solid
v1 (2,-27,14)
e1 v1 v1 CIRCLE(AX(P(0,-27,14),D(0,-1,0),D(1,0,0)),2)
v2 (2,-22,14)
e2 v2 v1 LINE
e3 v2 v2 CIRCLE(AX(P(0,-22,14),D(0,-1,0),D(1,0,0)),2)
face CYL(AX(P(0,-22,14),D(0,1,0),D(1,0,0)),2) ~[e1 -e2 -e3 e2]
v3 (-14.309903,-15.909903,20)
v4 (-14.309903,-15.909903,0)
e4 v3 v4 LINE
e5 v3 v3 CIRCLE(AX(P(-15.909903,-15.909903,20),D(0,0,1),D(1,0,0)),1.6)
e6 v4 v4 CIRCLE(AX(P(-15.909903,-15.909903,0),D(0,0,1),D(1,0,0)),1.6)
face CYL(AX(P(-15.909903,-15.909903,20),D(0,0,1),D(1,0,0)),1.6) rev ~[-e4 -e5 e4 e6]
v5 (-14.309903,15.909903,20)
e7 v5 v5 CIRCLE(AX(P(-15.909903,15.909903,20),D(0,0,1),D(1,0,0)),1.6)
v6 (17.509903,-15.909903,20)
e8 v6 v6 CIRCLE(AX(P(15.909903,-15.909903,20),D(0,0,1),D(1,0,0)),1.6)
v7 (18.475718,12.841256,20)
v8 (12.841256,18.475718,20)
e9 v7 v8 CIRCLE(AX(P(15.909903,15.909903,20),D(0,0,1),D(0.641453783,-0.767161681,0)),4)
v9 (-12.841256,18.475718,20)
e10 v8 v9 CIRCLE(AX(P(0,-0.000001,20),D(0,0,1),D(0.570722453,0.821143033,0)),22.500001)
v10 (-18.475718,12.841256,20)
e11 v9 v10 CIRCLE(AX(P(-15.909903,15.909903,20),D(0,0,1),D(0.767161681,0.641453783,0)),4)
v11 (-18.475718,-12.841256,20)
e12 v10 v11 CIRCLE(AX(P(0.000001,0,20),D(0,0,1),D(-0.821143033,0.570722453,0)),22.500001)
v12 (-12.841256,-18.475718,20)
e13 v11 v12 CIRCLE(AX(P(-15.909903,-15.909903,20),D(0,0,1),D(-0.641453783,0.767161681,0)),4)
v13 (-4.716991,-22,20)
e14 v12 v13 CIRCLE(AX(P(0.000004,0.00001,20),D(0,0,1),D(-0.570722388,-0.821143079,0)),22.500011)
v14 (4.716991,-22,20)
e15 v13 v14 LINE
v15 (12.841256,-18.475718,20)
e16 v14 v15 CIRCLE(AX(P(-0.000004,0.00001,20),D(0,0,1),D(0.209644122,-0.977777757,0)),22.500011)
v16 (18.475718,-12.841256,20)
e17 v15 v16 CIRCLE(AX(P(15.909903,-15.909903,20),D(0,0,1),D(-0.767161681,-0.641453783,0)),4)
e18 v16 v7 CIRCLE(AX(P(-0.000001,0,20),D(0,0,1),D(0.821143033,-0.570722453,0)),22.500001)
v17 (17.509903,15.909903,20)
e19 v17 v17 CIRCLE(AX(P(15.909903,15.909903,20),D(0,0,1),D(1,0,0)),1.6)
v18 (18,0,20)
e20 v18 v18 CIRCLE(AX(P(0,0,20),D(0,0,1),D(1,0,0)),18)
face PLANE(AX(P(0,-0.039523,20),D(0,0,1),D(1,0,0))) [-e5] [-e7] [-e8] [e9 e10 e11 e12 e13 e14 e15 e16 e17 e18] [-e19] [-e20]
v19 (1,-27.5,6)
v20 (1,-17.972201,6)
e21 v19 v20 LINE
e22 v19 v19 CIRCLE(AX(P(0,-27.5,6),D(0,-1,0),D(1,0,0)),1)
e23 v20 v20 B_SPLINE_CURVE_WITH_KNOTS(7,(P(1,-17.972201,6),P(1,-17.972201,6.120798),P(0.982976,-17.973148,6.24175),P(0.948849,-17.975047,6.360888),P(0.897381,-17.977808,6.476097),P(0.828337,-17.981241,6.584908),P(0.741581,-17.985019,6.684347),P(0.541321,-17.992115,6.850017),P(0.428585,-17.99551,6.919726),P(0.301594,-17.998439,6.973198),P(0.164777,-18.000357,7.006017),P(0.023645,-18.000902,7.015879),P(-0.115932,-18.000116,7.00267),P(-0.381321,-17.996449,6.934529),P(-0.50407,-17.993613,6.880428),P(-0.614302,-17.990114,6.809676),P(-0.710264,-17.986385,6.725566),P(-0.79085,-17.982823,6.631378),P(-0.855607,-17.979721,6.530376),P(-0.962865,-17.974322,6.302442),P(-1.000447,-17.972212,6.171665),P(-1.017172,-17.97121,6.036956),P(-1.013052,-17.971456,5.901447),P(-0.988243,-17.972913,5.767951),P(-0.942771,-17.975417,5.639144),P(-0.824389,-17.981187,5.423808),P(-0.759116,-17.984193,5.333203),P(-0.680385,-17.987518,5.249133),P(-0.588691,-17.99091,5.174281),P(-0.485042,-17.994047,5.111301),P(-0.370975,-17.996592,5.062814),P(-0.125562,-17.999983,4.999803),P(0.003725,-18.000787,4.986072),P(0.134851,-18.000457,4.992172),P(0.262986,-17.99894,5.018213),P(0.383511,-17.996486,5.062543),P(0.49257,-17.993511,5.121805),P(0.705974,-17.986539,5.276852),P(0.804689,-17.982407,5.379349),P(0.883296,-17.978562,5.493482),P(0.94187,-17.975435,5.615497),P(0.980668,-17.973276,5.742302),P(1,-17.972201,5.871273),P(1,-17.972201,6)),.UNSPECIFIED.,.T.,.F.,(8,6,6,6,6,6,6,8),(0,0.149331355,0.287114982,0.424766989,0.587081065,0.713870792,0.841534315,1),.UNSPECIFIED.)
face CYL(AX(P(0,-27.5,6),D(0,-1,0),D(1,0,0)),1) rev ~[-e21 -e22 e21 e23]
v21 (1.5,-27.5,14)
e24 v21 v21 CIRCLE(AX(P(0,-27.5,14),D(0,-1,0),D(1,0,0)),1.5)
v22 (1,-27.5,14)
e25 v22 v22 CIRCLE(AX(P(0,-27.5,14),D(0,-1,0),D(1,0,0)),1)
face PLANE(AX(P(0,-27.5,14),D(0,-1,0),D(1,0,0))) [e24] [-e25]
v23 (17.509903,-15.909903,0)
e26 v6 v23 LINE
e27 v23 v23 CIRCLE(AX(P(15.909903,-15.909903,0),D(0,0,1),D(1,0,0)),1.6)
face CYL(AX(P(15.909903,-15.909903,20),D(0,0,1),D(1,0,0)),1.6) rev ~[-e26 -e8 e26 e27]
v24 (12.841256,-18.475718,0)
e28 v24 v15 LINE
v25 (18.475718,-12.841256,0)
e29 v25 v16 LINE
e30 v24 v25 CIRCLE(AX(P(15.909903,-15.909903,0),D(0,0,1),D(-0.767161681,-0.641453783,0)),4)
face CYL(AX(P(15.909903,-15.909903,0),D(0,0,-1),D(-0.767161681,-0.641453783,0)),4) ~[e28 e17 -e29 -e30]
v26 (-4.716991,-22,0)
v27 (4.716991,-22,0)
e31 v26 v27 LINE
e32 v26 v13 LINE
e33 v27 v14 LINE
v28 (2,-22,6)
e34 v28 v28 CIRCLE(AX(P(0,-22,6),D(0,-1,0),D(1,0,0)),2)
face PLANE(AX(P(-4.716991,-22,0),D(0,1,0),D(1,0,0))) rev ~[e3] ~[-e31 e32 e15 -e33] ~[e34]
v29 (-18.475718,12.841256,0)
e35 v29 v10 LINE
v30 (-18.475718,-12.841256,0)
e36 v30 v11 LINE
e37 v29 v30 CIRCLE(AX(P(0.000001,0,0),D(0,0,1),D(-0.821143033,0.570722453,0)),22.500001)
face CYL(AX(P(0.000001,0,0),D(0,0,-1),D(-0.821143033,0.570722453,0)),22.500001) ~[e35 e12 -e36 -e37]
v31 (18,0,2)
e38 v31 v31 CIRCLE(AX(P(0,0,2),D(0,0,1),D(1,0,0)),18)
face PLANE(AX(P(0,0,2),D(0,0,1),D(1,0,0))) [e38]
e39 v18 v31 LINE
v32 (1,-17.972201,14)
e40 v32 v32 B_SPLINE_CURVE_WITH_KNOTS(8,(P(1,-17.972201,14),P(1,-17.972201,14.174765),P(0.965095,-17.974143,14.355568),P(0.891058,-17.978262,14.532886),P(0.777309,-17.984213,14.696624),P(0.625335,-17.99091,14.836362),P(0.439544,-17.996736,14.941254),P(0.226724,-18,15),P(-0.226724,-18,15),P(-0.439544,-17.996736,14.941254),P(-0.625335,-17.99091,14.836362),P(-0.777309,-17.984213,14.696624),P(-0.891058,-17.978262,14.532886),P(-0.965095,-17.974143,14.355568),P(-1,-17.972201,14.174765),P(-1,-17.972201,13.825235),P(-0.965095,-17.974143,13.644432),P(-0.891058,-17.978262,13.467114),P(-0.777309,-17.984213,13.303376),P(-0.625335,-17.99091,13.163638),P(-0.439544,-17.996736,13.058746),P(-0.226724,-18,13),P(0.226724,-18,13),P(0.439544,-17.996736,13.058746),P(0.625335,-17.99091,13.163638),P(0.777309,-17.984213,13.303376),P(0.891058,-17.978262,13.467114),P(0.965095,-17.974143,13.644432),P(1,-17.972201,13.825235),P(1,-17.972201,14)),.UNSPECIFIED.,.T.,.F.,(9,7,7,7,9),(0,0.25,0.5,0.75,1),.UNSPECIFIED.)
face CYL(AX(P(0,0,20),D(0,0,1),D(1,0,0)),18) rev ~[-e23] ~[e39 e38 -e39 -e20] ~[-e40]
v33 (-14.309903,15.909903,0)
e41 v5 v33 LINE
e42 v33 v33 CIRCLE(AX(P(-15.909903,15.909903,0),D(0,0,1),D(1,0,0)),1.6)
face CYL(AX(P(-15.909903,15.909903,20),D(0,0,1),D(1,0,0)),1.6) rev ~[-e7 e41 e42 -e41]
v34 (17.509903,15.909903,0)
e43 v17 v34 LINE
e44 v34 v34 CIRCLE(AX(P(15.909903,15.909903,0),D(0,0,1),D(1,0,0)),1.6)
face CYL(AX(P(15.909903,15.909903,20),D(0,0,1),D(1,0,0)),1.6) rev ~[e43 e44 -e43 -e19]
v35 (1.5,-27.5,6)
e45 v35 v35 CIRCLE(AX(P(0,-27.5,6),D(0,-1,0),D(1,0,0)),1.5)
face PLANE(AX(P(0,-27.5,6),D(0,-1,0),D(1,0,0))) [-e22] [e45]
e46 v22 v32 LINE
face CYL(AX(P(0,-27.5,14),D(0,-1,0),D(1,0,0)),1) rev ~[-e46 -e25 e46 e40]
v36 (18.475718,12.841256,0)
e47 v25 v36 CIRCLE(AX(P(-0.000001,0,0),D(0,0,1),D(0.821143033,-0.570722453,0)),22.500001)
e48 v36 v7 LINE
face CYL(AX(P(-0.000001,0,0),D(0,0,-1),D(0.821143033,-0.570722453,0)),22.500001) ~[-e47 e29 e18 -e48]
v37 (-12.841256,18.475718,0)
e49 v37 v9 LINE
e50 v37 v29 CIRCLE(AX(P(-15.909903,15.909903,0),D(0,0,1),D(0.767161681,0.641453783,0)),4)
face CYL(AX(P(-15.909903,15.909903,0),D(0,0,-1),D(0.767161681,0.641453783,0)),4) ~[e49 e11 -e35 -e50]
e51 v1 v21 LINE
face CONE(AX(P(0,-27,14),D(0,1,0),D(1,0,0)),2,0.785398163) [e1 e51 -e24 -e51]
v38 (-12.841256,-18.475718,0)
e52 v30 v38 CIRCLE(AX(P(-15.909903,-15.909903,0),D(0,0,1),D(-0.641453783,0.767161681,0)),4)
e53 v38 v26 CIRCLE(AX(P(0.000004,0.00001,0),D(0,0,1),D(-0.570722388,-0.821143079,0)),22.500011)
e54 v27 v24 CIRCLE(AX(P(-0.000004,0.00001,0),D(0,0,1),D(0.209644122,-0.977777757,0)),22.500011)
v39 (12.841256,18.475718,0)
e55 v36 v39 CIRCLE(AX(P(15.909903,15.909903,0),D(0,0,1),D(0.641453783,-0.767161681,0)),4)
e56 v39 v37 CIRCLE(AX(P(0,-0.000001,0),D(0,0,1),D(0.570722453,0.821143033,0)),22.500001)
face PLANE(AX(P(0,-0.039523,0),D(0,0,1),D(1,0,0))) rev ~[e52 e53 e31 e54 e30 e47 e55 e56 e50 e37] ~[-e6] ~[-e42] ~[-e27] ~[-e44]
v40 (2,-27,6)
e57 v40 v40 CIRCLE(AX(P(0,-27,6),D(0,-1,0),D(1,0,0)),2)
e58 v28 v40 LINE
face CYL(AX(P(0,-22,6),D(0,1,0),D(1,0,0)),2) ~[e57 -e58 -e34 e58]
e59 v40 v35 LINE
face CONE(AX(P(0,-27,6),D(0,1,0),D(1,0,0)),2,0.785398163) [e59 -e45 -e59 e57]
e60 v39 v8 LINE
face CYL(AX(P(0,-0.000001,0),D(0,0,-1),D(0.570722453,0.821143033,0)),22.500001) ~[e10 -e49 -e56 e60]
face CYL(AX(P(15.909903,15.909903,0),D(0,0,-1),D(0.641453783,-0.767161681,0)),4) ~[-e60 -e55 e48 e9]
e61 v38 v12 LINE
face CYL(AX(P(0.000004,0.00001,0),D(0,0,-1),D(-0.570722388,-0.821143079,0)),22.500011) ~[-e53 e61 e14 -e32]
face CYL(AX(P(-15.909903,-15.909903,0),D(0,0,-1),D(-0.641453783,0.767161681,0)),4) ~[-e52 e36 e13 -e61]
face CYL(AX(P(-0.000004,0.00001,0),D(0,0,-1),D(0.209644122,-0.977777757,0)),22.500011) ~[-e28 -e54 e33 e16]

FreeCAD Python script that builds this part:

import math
import FreeCAD as App
import Part
import Sketcher


def edges_at(feature, points):
    """Names of the edges that pass closest to the given points."""
    edges = feature.Shape.Edges
    near = lambda p: min(range(len(edges)), key=lambda i: edges[i].distToShape(Part.Vertex(*p))[0])
    return sorted({f"Edge{near(p) + 1}" for p in points})

doc = App.newDocument("Part")
body = doc.addObject("PartDesign::Body", "Body")

# Sketch on XY plane
sketch1 = doc.addObject("Sketcher::SketchObject", "Sketch")
body.addObject(sketch1)
sketch1.AttachmentSupport = (doc.XY_Plane, [""])
sketch1.MapMode = "FlatFace"
sketch1.addGeometry([
    Part.ArcOfCircle(Part.Circle(App.Vector(15.909903, 15.909903, 0), App.Vector(0, 0, 1), 4), math.radians(-50.09969), math.radians(140.09969)),  # 0
    Part.ArcOfCircle(Part.Circle(App.Vector(0, -0.000001, 0), App.Vector(0, 0, 1), 22.500001), math.radians(55.19938), math.radians(124.80062)),  # 1
    Part.ArcOfCircle(Part.Circle(App.Vector(-15.909903, 15.909903, 0), App.Vector(0, 0, 1), 4), math.radians(39.90031), math.radians(230.09969)),  # 2
    Part.ArcOfCircle(Part.Circle(App.Vector(0.000001, 0, 0), App.Vector(0, 0, 1), 22.500001), math.radians(145.19938), math.radians(214.80062)),  # 3
    Part.ArcOfCircle(Part.Circle(App.Vector(-15.909903, -15.909903, 0), App.Vector(0, 0, 1), 4), math.radians(129.90031), math.radians(320.09969)),  # 4
    Part.ArcOfCircle(Part.Circle(App.Vector(0.000004, 0.00001, 0), App.Vector(0, 0, 1), 22.500011), math.radians(-124.800615), math.radians(-102.101498)),  # 5
    Part.LineSegment(App.Vector(-4.716991, -22, 0), App.Vector(4.716991, -22, 0)),  # 6
    Part.ArcOfCircle(Part.Circle(App.Vector(-0.000004, 0.00001, 0), App.Vector(0, 0, 1), 22.500011), math.radians(-77.898502), math.radians(-55.199385)),  # 7
    Part.ArcOfCircle(Part.Circle(App.Vector(15.909903, -15.909903, 0), App.Vector(0, 0, 1), 4), math.radians(-140.09969), math.radians(50.09969)),  # 8
    Part.ArcOfCircle(Part.Circle(App.Vector(-0.000001, 0, 0), App.Vector(0, 0, 1), 22.500001), math.radians(-34.80062), math.radians(34.80062)),  # 9
], False)
sketch1.addConstraint([
    Sketcher.Constraint("Coincident", 0, 2, 1, 1),
    Sketcher.Constraint("Coincident", 1, 2, 2, 1),
    Sketcher.Constraint("Coincident", 2, 2, 3, 1),
    Sketcher.Constraint("Coincident", 3, 2, 4, 1),
    Sketcher.Constraint("Coincident", 4, 2, 5, 1),
    Sketcher.Constraint("Coincident", 5, 2, 6, 1),
    Sketcher.Constraint("Coincident", 6, 2, 7, 1),
    Sketcher.Constraint("Coincident", 7, 2, 8, 1),
    Sketcher.Constraint("Coincident", 8, 2, 9, 1),
    Sketcher.Constraint("Coincident", 9, 2, 0, 1),
    Sketcher.Constraint("Horizontal", 6),
    Sketcher.Constraint("Coincident", 1, 3, -1, 1),
    Sketcher.Constraint("Coincident", 3, 3, -1, 1),
    Sketcher.Constraint("Coincident", 9, 3, -1, 1),
    Sketcher.Constraint("Coincident", 7, 3, 5, 3),
    Sketcher.Constraint("Equal", 0, 2),
    Sketcher.Constraint("Equal", 1, 3),
    Sketcher.Constraint("Equal", 2, 4),
    Sketcher.Constraint("Equal", 5, 7),
    Sketcher.Constraint("Equal", 4, 8),
    Sketcher.Constraint("Equal", 3, 9),
    Sketcher.Constraint("Symmetric", 0, 3, 4, 3, -1, 1),
    Sketcher.Constraint("Symmetric", 1, 3, 5, 3, -1, 1),
    Sketcher.Constraint("Symmetric", 2, 3, 8, 3, -1, 1),
    Sketcher.Constraint("Symmetric", 0, 3, 2, 3, -2),
    Sketcher.Constraint("Vertical", 1, 2, 4, 2),
    Sketcher.Constraint("Radius", 0, 4.0),
    Sketcher.Constraint("Radius", 1, 22.500001),
    Sketcher.Constraint("DistanceY", 5, 2, -1, 1, 22.0),
    Sketcher.Constraint("DistanceX", 3, 3, 0, 3, 15.909901),
    Sketcher.Constraint("DistanceY", 4, 3, 1, 3, 15.909901),
])
pad1 = doc.addObject("PartDesign::Pad", "Pad")
body.addObject(pad1)
pad1.Profile = sketch1
pad1.Length = 20

# Sketch on XY plane
sketch2 = doc.addObject("Sketcher::SketchObject", "Sketch001")
body.addObject(sketch2)
sketch2.AttachmentSupport = (doc.XY_Plane, [""])
sketch2.MapMode = "FlatFace"
sketch2.AttachmentOffset = App.Placement(App.Vector(0, 0, 20), App.Rotation())
sketch2.addGeometry([
    Part.Circle(App.Vector(-15.9, 15.9, 0), App.Vector(0, 0, 1), 1.6),
    Part.Circle(App.Vector(15.9, 15.9, 0), App.Vector(0, 0, 1), 1.6),
    Part.Circle(App.Vector(15.9, -15.9, 0), App.Vector(0, 0, 1), 1.6),
    Part.Circle(App.Vector(-15.9, -15.9, 0), App.Vector(0, 0, 1), 1.6),
], False)
sketch2.addConstraint([
    Sketcher.Constraint("Equal", 0, 1),
    Sketcher.Constraint("Equal", 1, 2),
    Sketcher.Constraint("Equal", 2, 3),
    Sketcher.Constraint("Symmetric", 0, 3, 2, 3, -1, 1),
    Sketcher.Constraint("Symmetric", 1, 3, 3, 3, -1, 1),
    Sketcher.Constraint("Symmetric", 0, 3, 1, 3, -2),
    Sketcher.Constraint("Diameter", 0, 3.2),
    Sketcher.Constraint("DistanceX", 0, 3, -1, 1, 15.909903),
    Sketcher.Constraint("DistanceY", -1, 1, 0, 3, 15.909903),
])
pocket1 = doc.addObject("PartDesign::Pocket", "Pocket")
body.addObject(pocket1)
pocket1.Profile = sketch2
pocket1.Type = "ThroughAll"

# Sketch on XY plane
sketch3 = doc.addObject("Sketcher::SketchObject", "Sketch002")
body.addObject(sketch3)
sketch3.AttachmentSupport = (doc.XY_Plane, [""])
sketch3.MapMode = "FlatFace"
sketch3.AttachmentOffset = App.Placement(App.Vector(0, 0, 20), App.Rotation())
sketch3.addGeometry(Part.Circle(App.Vector(0, 0, 0), App.Vector(0, 0, 1), 18), False)
sketch3.addConstraint([
    Sketcher.Constraint("Coincident", 0, 3, -1, 1),
    Sketcher.Constraint("Diameter", 0, 36.0),
])
pocket2 = doc.addObject("PartDesign::Pocket", "Pocket001")
body.addObject(pocket2)
pocket2.Profile = sketch3
pocket2.Length = 18

# Sketch on XZ plane
sketch4 = doc.addObject("Sketcher::SketchObject", "Sketch003")
body.addObject(sketch4)
sketch4.AttachmentSupport = (doc.XZ_Plane, [""])
sketch4.MapMode = "FlatFace"
sketch4.AttachmentOffset = App.Placement(App.Vector(0, 0, 22), App.Rotation())
sketch4.addGeometry([
    Part.Circle(App.Vector(0, 14, 0), App.Vector(0, 0, 1), 2),
    Part.Circle(App.Vector(0, 6, 0), App.Vector(0, 0, 1), 2),
], False)
sketch4.addConstraint([
    Sketcher.Constraint("Equal", 0, 1),
    Sketcher.Constraint("PointOnObject", 0, 3, -2),
    Sketcher.Constraint("PointOnObject", 1, 3, -2),
    Sketcher.Constraint("Diameter", 0, 4.0),
    Sketcher.Constraint("DistanceY", -1, 1, 0, 3, 14.0),
    Sketcher.Constraint("DistanceY", -1, 1, 1, 3, 6.0),
])
pad2 = doc.addObject("PartDesign::Pad", "Pad001")
body.addObject(pad2)
pad2.Profile = sketch4
pad2.Length = 5.5

# Sketch on XZ plane
sketch5 = doc.addObject("Sketcher::SketchObject", "Sketch004")
body.addObject(sketch5)
sketch5.AttachmentSupport = (doc.XZ_Plane, [""])
sketch5.MapMode = "FlatFace"
sketch5.AttachmentOffset = App.Placement(App.Vector(0, 0, 27.5), App.Rotation())
sketch5.addGeometry(Part.Circle(App.Vector(0, 6, 0), App.Vector(0, 0, 1), 1), False)
sketch5.addConstraint([
    Sketcher.Constraint("PointOnObject", 0, 3, -2),
    Sketcher.Constraint("Diameter", 0, 2.0),
    Sketcher.Constraint("DistanceY", -1, 1, 0, 3, 6.0),
])
pocket3 = doc.addObject("PartDesign::Pocket", "Pocket002")
body.addObject(pocket3)
pocket3.Profile = sketch5
pocket3.Length = 25

# Sketch on XZ plane
sketch6 = doc.addObject("Sketcher::SketchObject", "Sketch005")
body.addObject(sketch6)
sketch6.AttachmentSupport = (doc.XZ_Plane, [""])
sketch6.MapMode = "FlatFace"
sketch6.AttachmentOffset = App.Placement(App.Vector(0, 0, 27.5), App.Rotation())
sketch6.addGeometry(Part.Circle(App.Vector(0, 14, 0), App.Vector(0, 0, 1), 1), False)
sketch6.addConstraint([
    Sketcher.Constraint("PointOnObject", 0, 3, -2),
    Sketcher.Constraint("Diameter", 0, 2.0),
    Sketcher.Constraint("DistanceY", -1, 1, 0, 3, 14.0),
])
pocket4 = doc.addObject("PartDesign::Pocket", "Pocket003")
body.addObject(pocket4)
pocket4.Profile = sketch6
pocket4.Length = 25
doc.recompute()

chamfer = doc.addObject("PartDesign::Chamfer", "Chamfer")
body.addObject(chamfer)
chamfer.Base = (pocket4, edges_at(pocket4, [(-2, -27.5, 14), (-2, -27.5, 6)]))
chamfer.Size = 0.5

doc.recompute()
